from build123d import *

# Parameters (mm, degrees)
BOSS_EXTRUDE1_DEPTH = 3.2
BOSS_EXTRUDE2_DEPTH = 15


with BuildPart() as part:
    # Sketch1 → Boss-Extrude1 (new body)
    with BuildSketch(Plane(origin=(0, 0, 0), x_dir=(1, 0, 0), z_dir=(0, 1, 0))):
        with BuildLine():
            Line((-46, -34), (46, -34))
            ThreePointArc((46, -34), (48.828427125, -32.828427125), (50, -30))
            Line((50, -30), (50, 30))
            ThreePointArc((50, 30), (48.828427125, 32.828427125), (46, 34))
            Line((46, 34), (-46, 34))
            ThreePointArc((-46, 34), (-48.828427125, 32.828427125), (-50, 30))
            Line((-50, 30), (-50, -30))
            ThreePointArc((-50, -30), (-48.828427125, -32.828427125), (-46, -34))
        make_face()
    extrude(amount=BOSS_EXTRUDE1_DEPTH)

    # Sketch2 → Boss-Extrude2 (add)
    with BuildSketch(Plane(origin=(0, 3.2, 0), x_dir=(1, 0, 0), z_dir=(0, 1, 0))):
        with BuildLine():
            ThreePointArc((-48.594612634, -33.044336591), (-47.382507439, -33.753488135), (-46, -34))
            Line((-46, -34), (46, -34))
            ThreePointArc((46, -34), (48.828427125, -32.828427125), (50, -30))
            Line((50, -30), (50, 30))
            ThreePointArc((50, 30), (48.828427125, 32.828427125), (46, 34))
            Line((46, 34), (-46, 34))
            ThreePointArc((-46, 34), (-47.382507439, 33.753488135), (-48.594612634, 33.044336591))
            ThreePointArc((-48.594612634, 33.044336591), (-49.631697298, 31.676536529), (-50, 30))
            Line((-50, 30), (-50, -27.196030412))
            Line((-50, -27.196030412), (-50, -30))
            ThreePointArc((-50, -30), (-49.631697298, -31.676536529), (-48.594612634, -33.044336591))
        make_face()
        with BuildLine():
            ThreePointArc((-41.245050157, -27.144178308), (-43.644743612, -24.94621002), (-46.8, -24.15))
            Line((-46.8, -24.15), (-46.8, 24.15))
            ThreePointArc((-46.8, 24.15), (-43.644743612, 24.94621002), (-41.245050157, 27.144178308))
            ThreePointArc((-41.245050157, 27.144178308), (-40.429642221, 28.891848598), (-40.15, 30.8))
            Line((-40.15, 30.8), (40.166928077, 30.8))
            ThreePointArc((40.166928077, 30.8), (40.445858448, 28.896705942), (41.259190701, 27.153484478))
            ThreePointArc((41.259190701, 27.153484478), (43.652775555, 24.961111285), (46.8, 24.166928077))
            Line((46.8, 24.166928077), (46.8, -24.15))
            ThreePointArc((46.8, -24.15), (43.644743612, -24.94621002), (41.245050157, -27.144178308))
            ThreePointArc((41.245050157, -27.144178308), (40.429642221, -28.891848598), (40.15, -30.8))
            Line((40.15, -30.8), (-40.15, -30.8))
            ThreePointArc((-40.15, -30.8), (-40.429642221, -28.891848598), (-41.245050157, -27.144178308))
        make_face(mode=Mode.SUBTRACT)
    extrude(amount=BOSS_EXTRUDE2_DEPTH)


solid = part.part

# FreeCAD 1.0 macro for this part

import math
import FreeCAD as App
import Part
import Sketcher
from FreeCAD import Vector
Q = App.Units.Quantity

doc = App.newDocument("Part")
body = doc.addObject("PartDesign::Body", "Body")

# Sketch on XZ plane
sketch1 = body.newObject("Sketcher::SketchObject", "Sketch")
sketch1.AttachmentSupport = (doc.getObject("XZ_Plane"), [""])
sketch1.MapMode = "FlatFace"
sketch1.addGeometry([
    Part.LineSegment(Vector(-46, 34, 0), Vector(46, 34, 0)),  # 0
    Part.ArcOfCircle(Part.Circle(Vector(46, 30, 0), Vector(0, 0, 1), 4), math.radians(0), math.radians(90)),  # 1
    Part.LineSegment(Vector(50, 30, 0), Vector(50, -30, 0)),  # 2
    Part.ArcOfCircle(Part.Circle(Vector(46, -30, 0), Vector(0, 0, 1), 4), math.radians(-90), math.radians(0)),  # 3
    Part.LineSegment(Vector(46, -34, 0), Vector(-46, -34, 0)),  # 4
    Part.ArcOfCircle(Part.Circle(Vector(-46, -30, 0), Vector(0, 0, 1), 4), math.radians(180), math.radians(270)),  # 5
    Part.LineSegment(Vector(-50, -30, 0), Vector(-50, 30, 0)),  # 6
    Part.ArcOfCircle(Part.Circle(Vector(-46, 30, 0), Vector(0, 0, 1), 4), math.radians(90), math.radians(180)),  # 7
], False)
sketch1.addConstraint([
    Sketcher.Constraint("Tangent", 0, 2, 1, 2),
    Sketcher.Constraint("Tangent", 1, 1, 2, 1),
    Sketcher.Constraint("Tangent", 2, 2, 3, 2),
    Sketcher.Constraint("Tangent", 3, 1, 4, 1),
    Sketcher.Constraint("Tangent", 4, 2, 5, 2),
    Sketcher.Constraint("Tangent", 5, 1, 6, 1),
    Sketcher.Constraint("Tangent", 6, 2, 7, 2),
    Sketcher.Constraint("Tangent", 7, 1, 0, 1),
    Sketcher.Constraint("Horizontal", 0),
    Sketcher.Constraint("Vertical", 2),
    Sketcher.Constraint("Horizontal", 4),
    Sketcher.Constraint("Vertical", 6),
    Sketcher.Constraint("Equal", 1, 3),
    Sketcher.Constraint("Equal", 3, 5),
    Sketcher.Constraint("Equal", 5, 7),
    Sketcher.Constraint("Symmetric", 1, 3, 5, 3, -1, 1),
    Sketcher.Constraint("Radius", 1, Q("4 mm")),
    Sketcher.Constraint("DistanceX", 0, 1, 0, 2, Q("92 mm")),
    Sketcher.Constraint("DistanceY", 2, 2, 2, 1, Q("60 mm")),
])
pad1 = body.newObject("PartDesign::Pad", "Pad")
pad1.Profile = sketch1
pad1.Length = 3.2
pad1.Reversed = True

# Sketch on XZ plane
sketch2 = body.newObject("Sketcher::SketchObject", "Sketch001")
sketch2.AttachmentSupport = (doc.getObject("XZ_Plane"), [""])
sketch2.MapMode = "FlatFace"
sketch2.AttachmentOffset = App.Placement(Vector(0, 0, -3.2), App.Rotation())
sketch2.addGeometry([
    Part.ArcOfCircle(Part.Circle(Vector(-46, 30, 0), Vector(0, 0, 1), 4), math.radians(90), math.radians(130)),  # 0
    Part.LineSegment(Vector(-46, 34, 0), Vector(46, 34, 0)),  # 1
    Part.ArcOfCircle(Part.Circle(Vector(46, 30, 0), Vector(0, 0, 1), 4), math.radians(0), math.radians(90)),  # 2
    Part.LineSegment(Vector(50, 30, 0), Vector(50, -30, 0)),  # 3
    Part.ArcOfCircle(Part.Circle(Vector(46, -30, 0), Vector(0, 0, 1), 4), math.radians(-90), math.radians(0)),  # 4
    Part.LineSegment(Vector(46, -34, 0), Vector(-46, -34, 0)),  # 5
    Part.ArcOfCircle(Part.Circle(Vector(-46, -30, 0), Vector(0, 0, 1), 4), math.radians(-130), math.radians(-90)),  # 6
    Part.ArcOfCircle(Part.Circle(Vector(-46, -30, 0), Vector(0, 0, 1), 4), math.radians(-180), math.radians(-130)),  # 7
    Part.LineSegment(Vector(-50, -30, 0), Vector(-50, 30, 0)),  # 8
    Part.ArcOfCircle(Part.Circle(Vector(-46, 30, 0), Vector(0, 0, 1), 4), math.radians(130), math.radians(180)),  # 9
    Part.ArcOfCircle(Part.Circle(Vector(-46.8, 30.8, 0), Vector(0, 0, 1), 6.6), math.radians(-33), math.radians(0)),  # 10
    Part.ArcOfCircle(Part.Circle(Vector(-46.8, 30.8, 0), Vector(0, 0, 1), 6.6), math.radians(-90), math.radians(-33)),  # 11
    Part.LineSegment(Vector(-46.8, 24.1, 0), Vector(-46.8, -24.1, 0)),  # 12
    Part.ArcOfCircle(Part.Circle(Vector(-46.8, -30.8, 0), Vector(0, 0, 1), 6.6), math.radians(33), math.radians(90)),  # 13
    Part.ArcOfCircle(Part.Circle(Vector(-46.8, -30.8, 0), Vector(0, 0, 1), 6.6), math.radians(0), math.radians(33)),  # 14
    Part.LineSegment(Vector(-40.1, -30.8, 0), Vector(40.2, -30.8, 0)),  # 15
    Part.ArcOfCircle(Part.Circle(Vector(46.8, -30.8, 0), Vector(0, 0, 1), 6.6), math.radians(147), math.radians(180)),  # 16
    Part.ArcOfCircle(Part.Circle(Vector(46.8, -30.8, 0), Vector(0, 0, 1), 6.6), math.radians(90), math.radians(147)),  # 17
    Part.LineSegment(Vector(46.8, -24.2, 0), Vector(46.8, 24.1, 0)),  # 18
    Part.ArcOfCircle(Part.Circle(Vector(46.8, 30.8, 0), Vector(0, 0, 1), 6.6), math.radians(-147), math.radians(-90)),  # 19
    Part.ArcOfCircle(Part.Circle(Vector(46.8, 30.8, 0), Vector(0, 0, 1), 6.6), math.radians(180), math.radians(213)),  # 20
    Part.LineSegment(Vector(40.1, 30.8, 0), Vector(-40.1, 30.8, 0)),  # 21
], False)
sketch2.addConstraint([
    Sketcher.Constraint("Tangent", 0, 1, 1, 1),
    Sketcher.Constraint("Tangent", 1, 2, 2, 2),
    Sketcher.Constraint("Tangent", 2, 1, 3, 1),
    Sketcher.Constraint("Tangent", 3, 2, 4, 2),
    Sketcher.Constraint("Tangent", 4, 1, 5, 1),
    Sketcher.Constraint("Tangent", 5, 2, 6, 2),
    Sketcher.Constraint("Tangent", 6, 1, 7, 2),
    Sketcher.Constraint("Tangent", 7, 1, 8, 1),
    Sketcher.Constraint("Tangent", 8, 2, 9, 2),
    Sketcher.Constraint("Tangent", 9, 1, 0, 2),
    Sketcher.Constraint("Tangent", 10, 1, 11, 2),
    Sketcher.Constraint("Coincident", 11, 1, 12, 1),
    Sketcher.Constraint("Coincident", 12, 2, 13, 2),
    Sketcher.Constraint("Tangent", 13, 1, 14, 2),
    Sketcher.Constraint("Coincident", 14, 1, 15, 1),
    Sketcher.Constraint("Coincident", 15, 2, 16, 2),
    Sketcher.Constraint("Tangent", 16, 1, 17, 2),
    Sketcher.Constraint("Coincident", 17, 1, 18, 1),
    Sketcher.Constraint("Coincident", 18, 2, 19, 2),
    Sketcher.Constraint("Tangent", 19, 1, 20, 2),
    Sketcher.Constraint("Coincident", 20, 1, 21, 1),
    Sketcher.Constraint("Coincident", 21, 2, 10, 2),
    Sketcher.Constraint("Horizontal", 1),
    Sketcher.Constraint("Vertical", 3),
    Sketcher.Constraint("Horizontal", 5),
    Sketcher.Constraint("Vertical", 8),
    Sketcher.Constraint("Vertical", 12),
    Sketcher.Constraint("Horizontal", 15),
    Sketcher.Constraint("Vertical", 18),
    Sketcher.Constraint("Horizontal", 21),
    Sketcher.Constraint("Equal", 0, 2),
    Sketcher.Constraint("Equal", 2, 4),
    Sketcher.Constraint("Equal", 4, 6),
    Sketcher.Constraint("Equal", 6, 7),
    Sketcher.Constraint("Equal", 7, 9),
    Sketcher.Constraint("Equal", 10, 11),
    Sketcher.Constraint("Equal", 11, 13),
    Sketcher.Constraint("Equal", 13, 14),
    Sketcher.Constraint("Equal", 16, 17),
    Sketcher.Constraint("Equal", 14, 19),
    Sketcher.Constraint("Equal", 19, 20),
    Sketcher.Constraint("Symmetric", 0, 3, 4, 3, -1, 1),
    Sketcher.Constraint("Symmetric", 10, 3, 16, 3, -1, 1),
    Sketcher.Constraint("Symmetric", 13, 3, 19, 3, -1, 1),
    Sketcher.Constraint("Symmetric", 13, 3, 16, 3, -2),
    Sketcher.Constraint("Horizontal", 17, 3, 14, 1),
    Sketcher.Constraint("Horizontal", 10, 1, 19, 1),
    Sketcher.Constraint("Horizontal", 19, 3, 20, 1),
    Sketcher.Constraint("Vertical", 6, 1, 9, 1),
    Sketcher.Constraint("Vertical", 14, 3, 11, 1),
    Sketcher.Constraint("Vertical", 10, 1, 13, 1),
    Sketcher.Constraint("Vertical", 20, 3, 17, 1),
    Sketcher.Constraint("Radius", 0, Q("4 mm")),
    Sketcher.Constraint("DistanceX", 1, 1, 1, 2, Q("92 mm")),
    Sketcher.Constraint("DistanceY", 3, 2, 3, 1, Q("60 mm")),
    Sketcher.Constraint("Radius", 10, Q("6.65 mm")),
    Sketcher.Constraint("DistanceX", 21, 2, 21, 1, Q("80.3 mm")),
    Sketcher.Constraint("DistanceY", 12, 2, 12, 1, Q("48.3 mm")),
    Sketcher.Constraint("Radius", 16, Q("6.633072 mm")),
    Sketcher.Constraint("DistanceX", 10, 1, -1, 1, Q("41.24505 mm")),
    Sketcher.Constraint("DistanceX", -1, 1, 16, 1, Q("41.259191 mm")),
    Sketcher.Constraint("DistanceX", 6, 1, -1, 1, Q("48.594613 mm")),
])
pad2 = body.newObject("PartDesign::Pad", "Pad001")
pad2.Profile = sketch2
pad2.Length = 15
pad2.Reversed = True

doc.recompute()
